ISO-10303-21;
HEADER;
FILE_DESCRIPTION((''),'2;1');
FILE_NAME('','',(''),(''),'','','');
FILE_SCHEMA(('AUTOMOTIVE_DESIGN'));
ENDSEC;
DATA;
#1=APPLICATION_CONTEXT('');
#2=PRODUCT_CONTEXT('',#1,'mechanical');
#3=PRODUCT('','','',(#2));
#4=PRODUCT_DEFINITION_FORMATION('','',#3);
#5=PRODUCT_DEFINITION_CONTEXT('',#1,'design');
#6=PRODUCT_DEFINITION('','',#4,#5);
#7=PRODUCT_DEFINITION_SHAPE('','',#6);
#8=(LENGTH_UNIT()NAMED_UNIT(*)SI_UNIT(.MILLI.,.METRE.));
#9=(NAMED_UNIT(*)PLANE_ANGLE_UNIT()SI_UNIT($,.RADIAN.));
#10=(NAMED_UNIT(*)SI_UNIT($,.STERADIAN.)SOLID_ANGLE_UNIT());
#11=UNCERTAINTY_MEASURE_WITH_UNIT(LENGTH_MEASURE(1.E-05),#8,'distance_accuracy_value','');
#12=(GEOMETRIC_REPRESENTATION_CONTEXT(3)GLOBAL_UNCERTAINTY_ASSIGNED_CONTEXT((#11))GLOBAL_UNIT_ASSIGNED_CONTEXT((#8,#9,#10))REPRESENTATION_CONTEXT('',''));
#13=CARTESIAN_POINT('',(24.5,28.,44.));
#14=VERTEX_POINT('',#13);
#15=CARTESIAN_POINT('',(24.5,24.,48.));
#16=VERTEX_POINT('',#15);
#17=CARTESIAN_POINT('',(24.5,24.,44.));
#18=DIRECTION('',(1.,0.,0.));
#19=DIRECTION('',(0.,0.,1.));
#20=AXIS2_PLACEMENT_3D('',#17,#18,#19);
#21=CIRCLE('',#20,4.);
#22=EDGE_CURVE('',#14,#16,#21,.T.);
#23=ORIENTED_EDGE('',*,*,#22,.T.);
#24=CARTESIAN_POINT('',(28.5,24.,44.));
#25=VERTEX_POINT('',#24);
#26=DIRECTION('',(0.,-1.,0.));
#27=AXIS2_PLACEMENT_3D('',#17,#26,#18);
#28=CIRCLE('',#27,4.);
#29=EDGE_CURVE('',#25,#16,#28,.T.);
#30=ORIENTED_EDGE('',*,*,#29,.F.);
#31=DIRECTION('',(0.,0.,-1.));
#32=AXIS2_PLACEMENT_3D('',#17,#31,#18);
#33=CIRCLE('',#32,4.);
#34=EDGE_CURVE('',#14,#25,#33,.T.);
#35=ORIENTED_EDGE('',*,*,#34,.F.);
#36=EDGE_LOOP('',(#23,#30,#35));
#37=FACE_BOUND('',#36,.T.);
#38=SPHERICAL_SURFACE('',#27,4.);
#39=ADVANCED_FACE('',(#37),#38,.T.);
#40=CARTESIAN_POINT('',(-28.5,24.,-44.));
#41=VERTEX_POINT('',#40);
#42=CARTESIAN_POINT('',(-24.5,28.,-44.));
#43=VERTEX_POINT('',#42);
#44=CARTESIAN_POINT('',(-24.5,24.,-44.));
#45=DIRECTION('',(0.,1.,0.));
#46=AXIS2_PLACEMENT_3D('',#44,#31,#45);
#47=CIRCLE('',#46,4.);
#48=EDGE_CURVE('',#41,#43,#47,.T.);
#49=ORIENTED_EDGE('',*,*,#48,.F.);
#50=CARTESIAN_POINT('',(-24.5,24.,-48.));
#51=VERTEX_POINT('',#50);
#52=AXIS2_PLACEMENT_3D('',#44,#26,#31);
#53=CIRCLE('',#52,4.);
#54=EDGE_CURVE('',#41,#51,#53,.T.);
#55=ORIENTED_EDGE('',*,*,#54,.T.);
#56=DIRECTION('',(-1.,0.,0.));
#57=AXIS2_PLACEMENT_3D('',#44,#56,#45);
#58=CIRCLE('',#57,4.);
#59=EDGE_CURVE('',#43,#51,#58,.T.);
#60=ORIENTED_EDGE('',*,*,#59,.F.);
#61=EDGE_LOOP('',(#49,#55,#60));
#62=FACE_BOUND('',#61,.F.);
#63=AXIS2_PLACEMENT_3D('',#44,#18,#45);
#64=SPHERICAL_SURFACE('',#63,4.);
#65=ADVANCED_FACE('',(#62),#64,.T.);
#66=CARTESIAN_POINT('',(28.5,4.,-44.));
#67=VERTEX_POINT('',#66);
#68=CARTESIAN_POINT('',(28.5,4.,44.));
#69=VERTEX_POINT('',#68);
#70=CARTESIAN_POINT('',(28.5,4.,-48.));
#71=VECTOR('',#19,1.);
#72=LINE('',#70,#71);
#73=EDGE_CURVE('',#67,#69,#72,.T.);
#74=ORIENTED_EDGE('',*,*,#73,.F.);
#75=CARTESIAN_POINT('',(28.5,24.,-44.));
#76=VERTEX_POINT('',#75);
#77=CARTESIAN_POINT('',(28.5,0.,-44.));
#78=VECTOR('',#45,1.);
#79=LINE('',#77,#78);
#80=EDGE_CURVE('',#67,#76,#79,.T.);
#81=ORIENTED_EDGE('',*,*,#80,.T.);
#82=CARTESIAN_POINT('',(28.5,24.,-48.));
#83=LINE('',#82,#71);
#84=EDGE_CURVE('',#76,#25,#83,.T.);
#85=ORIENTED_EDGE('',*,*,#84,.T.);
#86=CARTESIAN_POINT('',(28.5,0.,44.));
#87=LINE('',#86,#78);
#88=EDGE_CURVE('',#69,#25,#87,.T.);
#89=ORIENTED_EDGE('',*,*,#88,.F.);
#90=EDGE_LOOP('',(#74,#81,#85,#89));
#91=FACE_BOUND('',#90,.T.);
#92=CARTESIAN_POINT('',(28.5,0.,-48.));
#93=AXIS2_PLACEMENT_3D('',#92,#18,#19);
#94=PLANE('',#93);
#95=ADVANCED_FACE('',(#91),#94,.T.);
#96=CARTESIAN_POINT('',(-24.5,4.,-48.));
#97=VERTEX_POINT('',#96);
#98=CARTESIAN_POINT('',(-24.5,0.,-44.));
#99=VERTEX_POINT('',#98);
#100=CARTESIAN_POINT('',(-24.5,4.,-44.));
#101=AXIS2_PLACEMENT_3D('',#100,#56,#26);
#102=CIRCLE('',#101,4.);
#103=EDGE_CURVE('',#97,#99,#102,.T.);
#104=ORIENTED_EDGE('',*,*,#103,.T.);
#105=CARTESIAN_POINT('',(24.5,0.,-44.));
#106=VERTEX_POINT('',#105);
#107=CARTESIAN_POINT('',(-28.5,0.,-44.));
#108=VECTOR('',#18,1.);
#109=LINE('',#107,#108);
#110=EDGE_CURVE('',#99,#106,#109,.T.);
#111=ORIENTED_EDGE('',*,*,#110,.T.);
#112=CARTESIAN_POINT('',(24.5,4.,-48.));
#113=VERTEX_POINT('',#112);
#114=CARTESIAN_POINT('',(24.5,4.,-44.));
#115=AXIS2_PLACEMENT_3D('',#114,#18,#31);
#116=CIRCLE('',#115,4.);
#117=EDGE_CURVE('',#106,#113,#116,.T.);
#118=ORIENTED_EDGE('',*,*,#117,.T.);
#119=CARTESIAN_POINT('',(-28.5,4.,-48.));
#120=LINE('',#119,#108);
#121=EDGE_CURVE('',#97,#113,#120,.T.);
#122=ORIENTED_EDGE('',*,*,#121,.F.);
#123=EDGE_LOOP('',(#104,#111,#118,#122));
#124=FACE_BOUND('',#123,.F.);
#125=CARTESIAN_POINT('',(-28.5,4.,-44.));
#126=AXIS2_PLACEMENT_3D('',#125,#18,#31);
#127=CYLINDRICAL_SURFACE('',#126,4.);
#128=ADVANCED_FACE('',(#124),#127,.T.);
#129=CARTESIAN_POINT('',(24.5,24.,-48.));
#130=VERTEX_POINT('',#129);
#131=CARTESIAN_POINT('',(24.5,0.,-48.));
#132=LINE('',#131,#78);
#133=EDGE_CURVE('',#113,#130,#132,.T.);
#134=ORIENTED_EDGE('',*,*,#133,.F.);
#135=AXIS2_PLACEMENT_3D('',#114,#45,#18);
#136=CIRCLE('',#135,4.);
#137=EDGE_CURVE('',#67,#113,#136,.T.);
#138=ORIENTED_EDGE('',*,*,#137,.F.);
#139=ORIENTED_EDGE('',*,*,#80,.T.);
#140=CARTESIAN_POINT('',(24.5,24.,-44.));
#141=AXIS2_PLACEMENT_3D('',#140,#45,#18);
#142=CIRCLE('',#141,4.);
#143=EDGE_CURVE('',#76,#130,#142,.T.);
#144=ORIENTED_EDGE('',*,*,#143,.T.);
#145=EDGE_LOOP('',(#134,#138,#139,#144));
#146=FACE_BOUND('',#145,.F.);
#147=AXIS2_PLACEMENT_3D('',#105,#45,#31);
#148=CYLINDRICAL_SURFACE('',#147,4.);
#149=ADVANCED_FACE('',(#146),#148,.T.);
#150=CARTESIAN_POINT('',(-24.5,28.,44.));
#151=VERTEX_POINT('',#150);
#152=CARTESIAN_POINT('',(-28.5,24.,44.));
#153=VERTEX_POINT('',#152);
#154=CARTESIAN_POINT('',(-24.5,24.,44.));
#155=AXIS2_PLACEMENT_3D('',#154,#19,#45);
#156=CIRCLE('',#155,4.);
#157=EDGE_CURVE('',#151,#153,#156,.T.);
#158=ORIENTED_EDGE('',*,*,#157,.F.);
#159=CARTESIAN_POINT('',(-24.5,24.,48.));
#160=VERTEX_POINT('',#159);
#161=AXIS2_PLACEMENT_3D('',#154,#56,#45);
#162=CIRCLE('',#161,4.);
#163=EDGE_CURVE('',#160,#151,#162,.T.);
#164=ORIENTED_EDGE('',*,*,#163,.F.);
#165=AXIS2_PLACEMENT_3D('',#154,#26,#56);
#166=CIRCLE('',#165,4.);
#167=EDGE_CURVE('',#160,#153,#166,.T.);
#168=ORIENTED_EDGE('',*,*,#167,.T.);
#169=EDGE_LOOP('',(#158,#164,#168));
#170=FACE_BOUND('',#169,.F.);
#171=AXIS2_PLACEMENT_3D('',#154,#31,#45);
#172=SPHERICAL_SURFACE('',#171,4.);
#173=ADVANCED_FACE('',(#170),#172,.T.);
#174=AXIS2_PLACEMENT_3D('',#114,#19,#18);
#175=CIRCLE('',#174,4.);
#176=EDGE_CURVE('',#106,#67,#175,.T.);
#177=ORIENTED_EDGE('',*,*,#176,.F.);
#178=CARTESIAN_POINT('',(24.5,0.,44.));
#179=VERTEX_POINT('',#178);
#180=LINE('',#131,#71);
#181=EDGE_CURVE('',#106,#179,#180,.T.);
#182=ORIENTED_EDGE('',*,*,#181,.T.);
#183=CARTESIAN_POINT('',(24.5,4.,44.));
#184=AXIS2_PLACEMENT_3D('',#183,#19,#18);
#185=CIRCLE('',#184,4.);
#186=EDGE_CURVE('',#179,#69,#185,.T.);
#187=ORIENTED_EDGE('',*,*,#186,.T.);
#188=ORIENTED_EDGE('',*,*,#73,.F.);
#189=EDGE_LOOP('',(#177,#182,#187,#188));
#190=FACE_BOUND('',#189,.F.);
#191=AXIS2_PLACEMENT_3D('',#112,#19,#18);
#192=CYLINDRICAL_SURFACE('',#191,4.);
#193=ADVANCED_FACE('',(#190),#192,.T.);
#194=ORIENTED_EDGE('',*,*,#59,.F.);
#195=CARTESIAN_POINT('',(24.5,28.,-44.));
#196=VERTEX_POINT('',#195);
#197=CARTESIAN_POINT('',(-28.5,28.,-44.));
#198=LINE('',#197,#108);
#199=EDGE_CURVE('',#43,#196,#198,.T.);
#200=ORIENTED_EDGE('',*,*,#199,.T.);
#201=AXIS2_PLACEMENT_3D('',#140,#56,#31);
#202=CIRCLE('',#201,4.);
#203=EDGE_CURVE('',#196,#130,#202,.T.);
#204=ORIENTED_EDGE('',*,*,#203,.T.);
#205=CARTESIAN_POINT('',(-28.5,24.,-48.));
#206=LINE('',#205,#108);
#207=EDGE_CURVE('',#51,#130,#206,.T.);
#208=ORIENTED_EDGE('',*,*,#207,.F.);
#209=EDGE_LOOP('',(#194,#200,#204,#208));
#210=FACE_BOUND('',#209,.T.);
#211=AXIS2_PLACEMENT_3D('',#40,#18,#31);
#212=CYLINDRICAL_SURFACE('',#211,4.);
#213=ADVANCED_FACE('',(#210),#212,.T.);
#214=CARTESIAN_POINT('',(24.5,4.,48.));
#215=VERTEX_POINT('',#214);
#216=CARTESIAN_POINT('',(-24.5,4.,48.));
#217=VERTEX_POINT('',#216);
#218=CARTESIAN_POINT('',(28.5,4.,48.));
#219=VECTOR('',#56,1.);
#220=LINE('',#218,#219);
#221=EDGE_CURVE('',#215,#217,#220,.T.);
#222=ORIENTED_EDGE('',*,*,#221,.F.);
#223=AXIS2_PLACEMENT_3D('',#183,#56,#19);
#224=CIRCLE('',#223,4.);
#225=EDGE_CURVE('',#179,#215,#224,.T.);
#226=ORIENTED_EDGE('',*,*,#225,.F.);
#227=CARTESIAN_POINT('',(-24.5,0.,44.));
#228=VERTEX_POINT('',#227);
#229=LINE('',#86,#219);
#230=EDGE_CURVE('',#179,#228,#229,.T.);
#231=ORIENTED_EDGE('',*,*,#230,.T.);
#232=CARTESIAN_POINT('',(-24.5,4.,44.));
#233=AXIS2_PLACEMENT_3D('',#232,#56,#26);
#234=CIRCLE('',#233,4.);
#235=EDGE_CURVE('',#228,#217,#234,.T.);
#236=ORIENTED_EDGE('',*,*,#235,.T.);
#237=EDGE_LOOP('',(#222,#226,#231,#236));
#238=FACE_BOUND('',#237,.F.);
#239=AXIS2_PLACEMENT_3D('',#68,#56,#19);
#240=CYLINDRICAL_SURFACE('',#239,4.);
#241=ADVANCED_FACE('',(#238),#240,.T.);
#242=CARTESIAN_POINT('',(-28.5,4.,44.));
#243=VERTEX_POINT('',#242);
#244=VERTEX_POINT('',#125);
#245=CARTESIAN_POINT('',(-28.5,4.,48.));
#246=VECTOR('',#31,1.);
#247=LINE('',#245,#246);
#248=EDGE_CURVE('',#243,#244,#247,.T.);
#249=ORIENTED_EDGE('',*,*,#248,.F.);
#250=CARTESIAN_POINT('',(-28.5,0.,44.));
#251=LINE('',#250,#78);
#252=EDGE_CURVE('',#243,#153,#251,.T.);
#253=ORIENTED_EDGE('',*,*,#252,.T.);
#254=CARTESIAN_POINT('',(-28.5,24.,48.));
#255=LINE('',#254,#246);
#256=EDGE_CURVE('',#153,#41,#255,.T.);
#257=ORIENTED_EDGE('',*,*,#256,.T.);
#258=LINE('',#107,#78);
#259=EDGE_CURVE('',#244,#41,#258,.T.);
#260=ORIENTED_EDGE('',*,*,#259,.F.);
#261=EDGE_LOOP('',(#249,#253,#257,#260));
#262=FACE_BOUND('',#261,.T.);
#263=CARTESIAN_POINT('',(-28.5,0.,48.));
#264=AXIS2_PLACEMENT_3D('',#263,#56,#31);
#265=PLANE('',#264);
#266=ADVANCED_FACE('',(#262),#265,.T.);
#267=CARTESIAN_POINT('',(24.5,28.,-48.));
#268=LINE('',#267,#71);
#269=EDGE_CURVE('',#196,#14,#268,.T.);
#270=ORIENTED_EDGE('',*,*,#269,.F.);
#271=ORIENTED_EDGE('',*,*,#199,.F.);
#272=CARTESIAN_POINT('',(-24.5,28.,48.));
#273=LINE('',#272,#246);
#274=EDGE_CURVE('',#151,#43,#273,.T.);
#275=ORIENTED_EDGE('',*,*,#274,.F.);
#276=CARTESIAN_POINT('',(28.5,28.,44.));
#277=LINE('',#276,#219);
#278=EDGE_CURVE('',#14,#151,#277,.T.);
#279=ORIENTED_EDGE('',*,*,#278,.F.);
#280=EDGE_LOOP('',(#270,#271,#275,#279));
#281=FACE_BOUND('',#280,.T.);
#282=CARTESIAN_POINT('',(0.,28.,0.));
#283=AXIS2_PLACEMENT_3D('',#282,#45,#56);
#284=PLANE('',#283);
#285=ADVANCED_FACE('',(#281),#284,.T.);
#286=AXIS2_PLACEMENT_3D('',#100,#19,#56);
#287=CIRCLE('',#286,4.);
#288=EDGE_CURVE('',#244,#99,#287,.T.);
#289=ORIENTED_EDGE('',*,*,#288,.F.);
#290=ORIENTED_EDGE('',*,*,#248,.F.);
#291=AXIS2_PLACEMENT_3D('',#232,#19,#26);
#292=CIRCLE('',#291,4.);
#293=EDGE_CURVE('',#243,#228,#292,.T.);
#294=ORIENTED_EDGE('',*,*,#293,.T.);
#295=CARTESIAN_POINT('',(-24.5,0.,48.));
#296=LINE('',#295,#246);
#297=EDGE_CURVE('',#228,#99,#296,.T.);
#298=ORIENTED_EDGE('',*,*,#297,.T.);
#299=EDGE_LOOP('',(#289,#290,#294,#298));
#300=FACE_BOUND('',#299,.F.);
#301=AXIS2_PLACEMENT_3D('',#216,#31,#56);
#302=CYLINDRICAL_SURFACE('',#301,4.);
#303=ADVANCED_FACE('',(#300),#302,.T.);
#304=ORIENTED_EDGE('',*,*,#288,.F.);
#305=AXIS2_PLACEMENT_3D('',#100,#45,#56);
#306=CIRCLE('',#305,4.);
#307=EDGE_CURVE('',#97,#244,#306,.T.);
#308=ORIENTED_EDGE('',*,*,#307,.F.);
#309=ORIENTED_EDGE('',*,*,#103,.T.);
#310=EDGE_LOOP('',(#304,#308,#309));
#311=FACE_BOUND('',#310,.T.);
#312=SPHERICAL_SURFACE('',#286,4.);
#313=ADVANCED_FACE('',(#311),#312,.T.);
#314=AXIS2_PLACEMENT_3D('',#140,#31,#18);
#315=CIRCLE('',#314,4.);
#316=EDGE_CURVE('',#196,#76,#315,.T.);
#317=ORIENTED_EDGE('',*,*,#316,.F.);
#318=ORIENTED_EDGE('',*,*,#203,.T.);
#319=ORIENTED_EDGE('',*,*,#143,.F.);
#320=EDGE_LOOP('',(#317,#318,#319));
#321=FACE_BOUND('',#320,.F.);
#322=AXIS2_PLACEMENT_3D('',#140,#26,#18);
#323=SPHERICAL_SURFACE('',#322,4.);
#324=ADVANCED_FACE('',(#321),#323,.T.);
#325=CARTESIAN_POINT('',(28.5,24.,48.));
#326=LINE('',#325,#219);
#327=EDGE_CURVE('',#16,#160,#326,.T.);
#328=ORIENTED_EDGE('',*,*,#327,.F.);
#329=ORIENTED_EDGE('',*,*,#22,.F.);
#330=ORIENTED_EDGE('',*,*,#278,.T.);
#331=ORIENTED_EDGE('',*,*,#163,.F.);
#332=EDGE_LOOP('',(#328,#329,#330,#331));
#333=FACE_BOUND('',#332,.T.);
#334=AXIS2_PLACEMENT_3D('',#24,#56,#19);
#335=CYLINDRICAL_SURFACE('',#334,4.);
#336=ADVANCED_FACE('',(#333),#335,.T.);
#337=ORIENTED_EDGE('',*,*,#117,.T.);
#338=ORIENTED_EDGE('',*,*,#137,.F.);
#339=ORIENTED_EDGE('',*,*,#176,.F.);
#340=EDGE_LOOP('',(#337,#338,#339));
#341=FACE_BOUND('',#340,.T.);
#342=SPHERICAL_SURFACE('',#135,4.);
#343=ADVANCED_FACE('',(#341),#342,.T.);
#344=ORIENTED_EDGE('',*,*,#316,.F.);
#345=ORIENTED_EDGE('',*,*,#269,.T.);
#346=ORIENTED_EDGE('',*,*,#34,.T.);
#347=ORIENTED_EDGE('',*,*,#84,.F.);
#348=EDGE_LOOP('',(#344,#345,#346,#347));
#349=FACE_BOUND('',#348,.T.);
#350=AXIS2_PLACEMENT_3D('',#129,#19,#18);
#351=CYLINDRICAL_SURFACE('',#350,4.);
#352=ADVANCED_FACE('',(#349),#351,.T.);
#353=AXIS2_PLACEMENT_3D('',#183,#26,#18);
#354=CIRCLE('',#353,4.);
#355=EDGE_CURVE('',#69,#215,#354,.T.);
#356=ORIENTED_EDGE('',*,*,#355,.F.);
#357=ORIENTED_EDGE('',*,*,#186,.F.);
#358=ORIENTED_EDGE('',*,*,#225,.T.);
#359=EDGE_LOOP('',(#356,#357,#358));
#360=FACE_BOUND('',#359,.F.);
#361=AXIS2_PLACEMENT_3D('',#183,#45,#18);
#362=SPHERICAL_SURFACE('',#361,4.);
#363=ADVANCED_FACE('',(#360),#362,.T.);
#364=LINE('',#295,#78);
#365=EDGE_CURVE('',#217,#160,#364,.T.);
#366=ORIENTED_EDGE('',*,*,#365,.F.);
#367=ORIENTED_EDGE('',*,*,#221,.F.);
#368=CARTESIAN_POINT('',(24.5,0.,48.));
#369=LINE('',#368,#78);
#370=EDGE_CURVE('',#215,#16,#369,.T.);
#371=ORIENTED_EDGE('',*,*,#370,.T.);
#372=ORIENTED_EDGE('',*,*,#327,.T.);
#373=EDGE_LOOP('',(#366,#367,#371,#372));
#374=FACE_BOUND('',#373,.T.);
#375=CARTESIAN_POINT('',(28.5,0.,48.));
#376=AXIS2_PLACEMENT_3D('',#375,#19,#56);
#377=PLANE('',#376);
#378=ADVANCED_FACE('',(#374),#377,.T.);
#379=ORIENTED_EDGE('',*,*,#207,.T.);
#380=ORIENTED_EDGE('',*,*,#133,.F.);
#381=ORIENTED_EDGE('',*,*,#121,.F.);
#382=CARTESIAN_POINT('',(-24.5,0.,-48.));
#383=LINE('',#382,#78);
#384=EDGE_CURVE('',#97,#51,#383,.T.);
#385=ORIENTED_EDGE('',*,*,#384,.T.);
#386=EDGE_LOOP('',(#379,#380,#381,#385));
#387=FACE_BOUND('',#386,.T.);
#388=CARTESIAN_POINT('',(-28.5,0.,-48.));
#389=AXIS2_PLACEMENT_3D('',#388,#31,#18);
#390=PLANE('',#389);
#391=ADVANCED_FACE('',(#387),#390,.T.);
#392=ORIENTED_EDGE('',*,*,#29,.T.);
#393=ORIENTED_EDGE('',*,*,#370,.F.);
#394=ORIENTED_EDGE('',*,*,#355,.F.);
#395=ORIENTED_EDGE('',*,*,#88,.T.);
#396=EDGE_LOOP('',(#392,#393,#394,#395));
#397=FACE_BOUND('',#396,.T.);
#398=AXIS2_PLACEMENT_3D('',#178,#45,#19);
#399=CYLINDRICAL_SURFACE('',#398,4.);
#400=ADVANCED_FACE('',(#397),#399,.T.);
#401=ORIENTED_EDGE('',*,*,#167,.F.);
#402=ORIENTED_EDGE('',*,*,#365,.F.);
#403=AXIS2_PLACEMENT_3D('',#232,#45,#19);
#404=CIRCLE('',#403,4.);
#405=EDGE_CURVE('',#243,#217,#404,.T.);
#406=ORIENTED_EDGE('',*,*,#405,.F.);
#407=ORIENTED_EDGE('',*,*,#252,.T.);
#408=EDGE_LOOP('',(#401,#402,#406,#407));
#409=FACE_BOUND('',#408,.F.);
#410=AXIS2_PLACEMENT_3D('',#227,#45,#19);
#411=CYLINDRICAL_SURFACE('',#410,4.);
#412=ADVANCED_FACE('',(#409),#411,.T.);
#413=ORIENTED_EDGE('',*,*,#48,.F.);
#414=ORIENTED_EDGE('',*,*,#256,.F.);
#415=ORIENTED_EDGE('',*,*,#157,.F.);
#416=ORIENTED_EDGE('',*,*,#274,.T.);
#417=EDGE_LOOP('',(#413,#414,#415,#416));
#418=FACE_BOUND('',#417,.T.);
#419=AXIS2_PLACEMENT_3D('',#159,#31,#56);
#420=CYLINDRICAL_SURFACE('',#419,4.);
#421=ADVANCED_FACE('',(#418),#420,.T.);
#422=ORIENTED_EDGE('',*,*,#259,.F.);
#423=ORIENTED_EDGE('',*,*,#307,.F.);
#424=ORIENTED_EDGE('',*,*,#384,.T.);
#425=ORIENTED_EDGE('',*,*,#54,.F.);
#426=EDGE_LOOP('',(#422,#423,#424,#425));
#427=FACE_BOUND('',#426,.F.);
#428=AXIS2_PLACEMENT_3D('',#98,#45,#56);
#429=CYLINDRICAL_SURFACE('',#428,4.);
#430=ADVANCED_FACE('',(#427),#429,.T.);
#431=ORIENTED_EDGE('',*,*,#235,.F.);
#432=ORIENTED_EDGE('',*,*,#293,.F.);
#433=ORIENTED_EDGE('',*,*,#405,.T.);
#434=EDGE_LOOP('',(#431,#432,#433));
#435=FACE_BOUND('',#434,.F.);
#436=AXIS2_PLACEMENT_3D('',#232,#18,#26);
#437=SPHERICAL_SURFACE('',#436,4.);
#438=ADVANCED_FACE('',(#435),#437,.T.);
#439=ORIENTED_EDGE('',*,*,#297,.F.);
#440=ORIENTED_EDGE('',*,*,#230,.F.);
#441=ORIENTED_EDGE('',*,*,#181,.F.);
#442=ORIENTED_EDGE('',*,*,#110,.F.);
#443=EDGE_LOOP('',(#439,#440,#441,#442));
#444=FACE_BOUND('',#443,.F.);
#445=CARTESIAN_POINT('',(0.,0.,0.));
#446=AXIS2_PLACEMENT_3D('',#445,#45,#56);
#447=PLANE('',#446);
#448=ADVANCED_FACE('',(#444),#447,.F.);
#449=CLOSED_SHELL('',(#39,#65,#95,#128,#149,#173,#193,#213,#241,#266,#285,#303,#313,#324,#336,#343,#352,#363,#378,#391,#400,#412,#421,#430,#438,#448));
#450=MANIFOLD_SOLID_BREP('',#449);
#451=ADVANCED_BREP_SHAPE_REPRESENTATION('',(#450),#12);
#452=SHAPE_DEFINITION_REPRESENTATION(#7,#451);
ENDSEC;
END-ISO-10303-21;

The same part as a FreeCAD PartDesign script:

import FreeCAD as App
import Part
import Sketcher
from FreeCAD import Vector

doc = App.newDocument("Part")
body = doc.addObject("PartDesign::Body", "Body")

# Sketch on XZ plane
sketch1 = body.newObject("Sketcher::SketchObject", "Sketch")
sketch1.AttachmentSupport = (doc.getObject("XZ_Plane"), [""])
sketch1.MapMode = "FlatFace"
sketch1.addGeometry([
    Part.LineSegment(Vector(-28, 48, 0), Vector(28, 48, 0)),
    Part.LineSegment(Vector(28, 48, 0), Vector(28, -48, 0)),
    Part.LineSegment(Vector(28, -48, 0), Vector(-28, -48, 0)),
    Part.LineSegment(Vector(-28, -48, 0), Vector(-28, 48, 0)),
], False)
sketch1.addConstraint([
    Sketcher.Constraint("Coincident", 0, 2, 1, 1),
    Sketcher.Constraint("Coincident", 1, 2, 2, 1),
    Sketcher.Constraint("Coincident", 2, 2, 3, 1),
    Sketcher.Constraint("Coincident", 3, 2, 0, 1),
    Sketcher.Constraint("Horizontal", 0),
    Sketcher.Constraint("Vertical", 1),
    Sketcher.Constraint("Horizontal", 2),
    Sketcher.Constraint("Vertical", 3),
    Sketcher.Constraint("Symmetric", 0, 2, 2, 2, -1, 1),
    Sketcher.Constraint("DistanceX", 0, 1, 0, 2, 57.0),
    Sketcher.Constraint("DistanceY", 1, 2, 1, 1, 96.0),
])
pad1 = body.newObject("PartDesign::Pad", "Pad")
pad1.Profile = sketch1
pad1.Length = 28
pad1.Reversed = True
doc.recompute()

fillet = body.newObject("PartDesign::Fillet", "Fillet")
fillet.Base = (pad1, ["Edge1"])
fillet.UseAllEdges = True
fillet.Radius = 4

doc.recompute()
